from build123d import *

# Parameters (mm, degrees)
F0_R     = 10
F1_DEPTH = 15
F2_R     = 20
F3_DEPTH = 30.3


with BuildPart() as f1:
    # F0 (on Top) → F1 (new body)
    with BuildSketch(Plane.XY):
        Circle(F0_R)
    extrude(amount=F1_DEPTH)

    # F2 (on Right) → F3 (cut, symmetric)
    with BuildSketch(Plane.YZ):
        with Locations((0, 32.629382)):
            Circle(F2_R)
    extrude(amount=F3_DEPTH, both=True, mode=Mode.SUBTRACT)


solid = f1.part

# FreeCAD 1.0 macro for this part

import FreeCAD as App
import Part
import Sketcher
from FreeCAD import Vector

doc = App.newDocument("Part")
body = doc.addObject("PartDesign::Body", "Body")

# Sketch on XY plane
sketch1 = body.newObject("Sketcher::SketchObject", "Sketch")
sketch1.AttachmentSupport = (doc.getObject("XY_Plane"), [""])
sketch1.MapMode = "FlatFace"
sketch1.addGeometry(Part.Circle(Vector(0, 0, 0), Vector(0, 0, 1), 10), False)
sketch1.addConstraint([
    Sketcher.Constraint("Coincident", 0, 3, -1, 1),
    Sketcher.Constraint("Diameter", 0, 20.0),
])
pad1 = body.newObject("PartDesign::Pad", "Pad")
pad1.Profile = sketch1
pad1.Length = 15

# Sketch on YZ plane
sketch2 = body.newObject("Sketcher::SketchObject", "Sketch001")
sketch2.AttachmentSupport = (doc.getObject("YZ_Plane"), [""])
sketch2.MapMode = "FlatFace"
sketch2.addGeometry(Part.Circle(Vector(0, 33, 0), Vector(0, 0, 1), 20), False)
sketch2.addConstraint([
    Sketcher.Constraint("PointOnObject", 0, 3, -2),
    Sketcher.Constraint("Diameter", 0, 40.0),
    Sketcher.Constraint("DistanceY", -1, 1, 0, 3, 32.629382),
])
pocket1 = body.newObject("PartDesign::Pocket", "Pocket")
pocket1.Profile = sketch2
pocket1.Length = 60.6
pocket1.Midplane = True

doc.recompute()
